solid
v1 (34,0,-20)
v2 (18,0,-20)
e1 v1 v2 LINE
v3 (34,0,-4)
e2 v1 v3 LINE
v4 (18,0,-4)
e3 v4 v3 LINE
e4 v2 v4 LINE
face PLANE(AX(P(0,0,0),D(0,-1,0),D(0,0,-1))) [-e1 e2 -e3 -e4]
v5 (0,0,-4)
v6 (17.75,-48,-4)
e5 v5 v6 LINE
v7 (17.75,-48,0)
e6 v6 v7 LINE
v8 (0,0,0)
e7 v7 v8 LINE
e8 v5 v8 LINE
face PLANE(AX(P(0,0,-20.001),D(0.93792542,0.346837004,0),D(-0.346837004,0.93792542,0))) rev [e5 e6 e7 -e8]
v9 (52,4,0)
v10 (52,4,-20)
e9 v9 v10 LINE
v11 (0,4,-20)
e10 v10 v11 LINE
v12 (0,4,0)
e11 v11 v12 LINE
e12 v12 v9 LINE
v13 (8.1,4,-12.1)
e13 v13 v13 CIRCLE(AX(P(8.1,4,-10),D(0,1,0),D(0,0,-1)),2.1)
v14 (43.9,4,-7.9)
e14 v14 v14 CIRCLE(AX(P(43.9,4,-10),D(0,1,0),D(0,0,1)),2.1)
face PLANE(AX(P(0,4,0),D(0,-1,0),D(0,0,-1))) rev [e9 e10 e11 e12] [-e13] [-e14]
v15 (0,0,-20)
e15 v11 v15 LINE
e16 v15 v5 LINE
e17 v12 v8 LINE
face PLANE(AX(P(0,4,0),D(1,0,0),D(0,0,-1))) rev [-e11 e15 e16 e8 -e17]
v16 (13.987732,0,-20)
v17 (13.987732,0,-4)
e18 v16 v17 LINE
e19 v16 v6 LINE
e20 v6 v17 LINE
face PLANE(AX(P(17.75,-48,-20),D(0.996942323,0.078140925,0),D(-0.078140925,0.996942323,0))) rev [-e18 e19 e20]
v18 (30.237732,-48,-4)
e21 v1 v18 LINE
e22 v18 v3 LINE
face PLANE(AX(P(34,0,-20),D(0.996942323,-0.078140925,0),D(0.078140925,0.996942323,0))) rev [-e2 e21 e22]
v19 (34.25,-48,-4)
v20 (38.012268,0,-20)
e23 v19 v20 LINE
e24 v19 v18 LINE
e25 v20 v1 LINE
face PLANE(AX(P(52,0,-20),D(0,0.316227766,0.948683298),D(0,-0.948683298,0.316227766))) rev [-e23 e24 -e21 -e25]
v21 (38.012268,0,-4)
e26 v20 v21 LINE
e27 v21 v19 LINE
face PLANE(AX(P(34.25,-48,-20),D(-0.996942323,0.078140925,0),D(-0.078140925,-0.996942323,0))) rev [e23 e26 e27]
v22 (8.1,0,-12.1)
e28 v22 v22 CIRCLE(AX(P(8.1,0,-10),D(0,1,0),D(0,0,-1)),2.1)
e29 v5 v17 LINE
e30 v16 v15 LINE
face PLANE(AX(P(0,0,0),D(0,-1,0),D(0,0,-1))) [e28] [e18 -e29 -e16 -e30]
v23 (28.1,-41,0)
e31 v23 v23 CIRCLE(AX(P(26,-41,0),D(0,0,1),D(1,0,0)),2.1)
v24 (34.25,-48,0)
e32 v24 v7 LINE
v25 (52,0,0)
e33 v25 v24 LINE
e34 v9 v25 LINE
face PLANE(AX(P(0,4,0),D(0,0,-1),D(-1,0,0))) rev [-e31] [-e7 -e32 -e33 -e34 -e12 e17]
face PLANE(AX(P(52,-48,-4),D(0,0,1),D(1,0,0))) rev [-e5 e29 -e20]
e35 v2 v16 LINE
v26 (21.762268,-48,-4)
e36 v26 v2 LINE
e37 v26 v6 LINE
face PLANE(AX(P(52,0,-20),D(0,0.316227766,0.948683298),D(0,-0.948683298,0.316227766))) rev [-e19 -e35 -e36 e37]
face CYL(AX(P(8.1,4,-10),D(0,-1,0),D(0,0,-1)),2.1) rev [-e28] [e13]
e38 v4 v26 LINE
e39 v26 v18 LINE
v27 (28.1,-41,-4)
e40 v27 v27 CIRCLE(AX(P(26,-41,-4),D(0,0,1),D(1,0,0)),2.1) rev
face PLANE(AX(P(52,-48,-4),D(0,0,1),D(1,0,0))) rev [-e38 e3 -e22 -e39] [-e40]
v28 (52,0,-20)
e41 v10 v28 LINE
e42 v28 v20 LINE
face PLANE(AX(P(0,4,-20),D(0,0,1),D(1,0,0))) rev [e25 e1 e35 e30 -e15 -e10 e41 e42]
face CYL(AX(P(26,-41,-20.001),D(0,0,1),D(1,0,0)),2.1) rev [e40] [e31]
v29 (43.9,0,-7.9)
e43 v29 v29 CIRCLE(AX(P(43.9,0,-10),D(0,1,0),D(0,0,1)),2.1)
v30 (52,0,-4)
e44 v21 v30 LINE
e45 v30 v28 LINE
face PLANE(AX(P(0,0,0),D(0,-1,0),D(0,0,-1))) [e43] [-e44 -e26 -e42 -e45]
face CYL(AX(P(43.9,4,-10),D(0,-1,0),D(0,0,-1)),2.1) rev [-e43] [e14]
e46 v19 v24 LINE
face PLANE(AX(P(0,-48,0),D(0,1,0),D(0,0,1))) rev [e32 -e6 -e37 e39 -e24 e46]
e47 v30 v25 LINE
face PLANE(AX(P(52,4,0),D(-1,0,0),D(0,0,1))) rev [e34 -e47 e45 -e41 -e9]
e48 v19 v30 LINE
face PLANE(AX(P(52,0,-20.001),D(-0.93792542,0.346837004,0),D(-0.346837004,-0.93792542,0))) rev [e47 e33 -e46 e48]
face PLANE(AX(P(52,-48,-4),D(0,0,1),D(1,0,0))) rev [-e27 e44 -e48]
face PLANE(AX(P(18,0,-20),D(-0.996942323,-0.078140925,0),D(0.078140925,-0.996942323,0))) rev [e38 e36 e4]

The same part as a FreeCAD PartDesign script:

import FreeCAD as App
import Part
import Sketcher
from FreeCAD import Vector

doc = App.newDocument("Part")
body = doc.addObject("PartDesign::Body", "Body")

# Sketch on XZ plane
sketch1 = doc.addObject("Sketcher::SketchObject", "Sketch")
body.addObject(sketch1)
sketch1.AttachmentSupport = (doc.XZ_Plane, [""])
sketch1.MapMode = "FlatFace"
sketch1.addGeometry([
    Part.LineSegment(Vector(0, -20, 0), Vector(0, 0, 0)),  # 0
    Part.LineSegment(Vector(0, 0, 0), Vector(52, 0, 0)),  # 1
    Part.LineSegment(Vector(52, 0, 0), Vector(52, -20, 0)),  # 2
    Part.LineSegment(Vector(52, -20, 0), Vector(0, -20, 0)),  # 3
    Part.Circle(Vector(8.1, -10, 0), Vector(0, 0, 1), 2.1),  # 4
    Part.Circle(Vector(43.9, -10, 0), Vector(0, 0, 1), 2.1),  # 5
], False)
sketch1.addConstraint([
    Sketcher.Constraint("Coincident", 0, 2, 1, 1),
    Sketcher.Constraint("Coincident", 1, 2, 2, 1),
    Sketcher.Constraint("Coincident", 2, 2, 3, 1),
    Sketcher.Constraint("Coincident", 3, 2, 0, 1),
    Sketcher.Constraint("Vertical", 0),
    Sketcher.Constraint("Horizontal", 1),
    Sketcher.Constraint("Vertical", 2),
    Sketcher.Constraint("Horizontal", 3),
    Sketcher.Constraint("Coincident", 0, 2, -1, 1),
    Sketcher.Constraint("Equal", 4, 5),
    Sketcher.Constraint("Horizontal", 4, 3, 5, 3),
    Sketcher.Constraint("Diameter", 4, 4.2),
    Sketcher.Constraint("DistanceX", 1, 1, 1, 2, 52.0),
    Sketcher.Constraint("DistanceY", 0, 1, 0, 2, 20.0),
    Sketcher.Constraint("DistanceY", 4, 3, -1, 1, 10.0),
    Sketcher.Constraint("DistanceX", -1, 1, 4, 3, 8.1),
    Sketcher.Constraint("DistanceX", -1, 1, 5, 3, 43.9),
])
pad1 = doc.addObject("PartDesign::Pad", "Pad")
body.addObject(pad1)
pad1.Profile = sketch1
pad1.Length = 4
pad1.Reversed = True

# Sketch on XZ plane
sketch2 = doc.addObject("Sketcher::SketchObject", "Sketch001")
body.addObject(sketch2)
sketch2.AttachmentSupport = (doc.XZ_Plane, [""])
sketch2.MapMode = "FlatFace"
sketch2.addGeometry([
    Part.LineSegment(Vector(0, 0, 0), Vector(0, -4, 0)),
    Part.LineSegment(Vector(0, -4, 0), Vector(52, -4, 0)),
    Part.LineSegment(Vector(52, -4, 0), Vector(52, 0, 0)),
    Part.LineSegment(Vector(52, 0, 0), Vector(0, 0, 0)),
], False)
sketch2.addConstraint([
    Sketcher.Constraint("Coincident", 0, 2, 1, 1),
    Sketcher.Constraint("Coincident", 1, 2, 2, 1),
    Sketcher.Constraint("Coincident", 2, 2, 3, 1),
    Sketcher.Constraint("Coincident", 3, 2, 0, 1),
    Sketcher.Constraint("Vertical", 0),
    Sketcher.Constraint("Horizontal", 1),
    Sketcher.Constraint("Vertical", 2),
    Sketcher.Constraint("Horizontal", 3),
    Sketcher.Constraint("Coincident", 3, 2, -1, 1),
    Sketcher.Constraint("DistanceX", 1, 1, 1, 2, 52.0),
    Sketcher.Constraint("DistanceY", 0, 2, 0, 1, 4.0),
])
pad2 = doc.addObject("PartDesign::Pad", "Pad001")
body.addObject(pad2)
pad2.Profile = sketch2
pad2.Length = 48

# Sketch on XY plane
sketch3 = doc.addObject("Sketcher::SketchObject", "Sketch002")
body.addObject(sketch3)
sketch3.AttachmentSupport = (doc.XY_Plane, [""])
sketch3.MapMode = "FlatFace"
sketch3.addGeometry(Part.Circle(Vector(26, -41, 0), Vector(0, 0, 1), 2.1), False)
sketch3.addConstraint([
    Sketcher.Constraint("Diameter", 0, 4.2),
    Sketcher.Constraint("DistanceX", -1, 1, 0, 3, 26.0),
    Sketcher.Constraint("DistanceY", 0, 3, -1, 1, 41.0),
])
pocket1 = doc.addObject("PartDesign::Pocket", "Pocket")
body.addObject(pocket1)
pocket1.Profile = sketch3
pocket1.Type = "UpToFirst"

# Sketch on XY plane
sketch4 = doc.addObject("Sketcher::SketchObject", "Sketch003")
body.addObject(sketch4)
sketch4.AttachmentSupport = (doc.XY_Plane, [""])
sketch4.MapMode = "FlatFace"
sketch4.addGeometry([
    Part.LineSegment(Vector(52, 0, 0), Vector(34.25, -48, 0)),
    Part.LineSegment(Vector(34.25, -48, 0), Vector(52, -48, 0)),
    Part.LineSegment(Vector(52, -48, 0), Vector(52, 0, 0)),
], False)
sketch4.addConstraint([
    Sketcher.Constraint("Coincident", 0, 2, 1, 1),
    Sketcher.Constraint("Coincident", 1, 2, 2, 1),
    Sketcher.Constraint("Coincident", 2, 2, 0, 1),
    Sketcher.Constraint("Horizontal", 1),
    Sketcher.Constraint("Vertical", 2),
    Sketcher.Constraint("PointOnObject", 2, 2, -1),
    Sketcher.Constraint("DistanceY", 2, 1, 2, 2, 48.0),
    Sketcher.Constraint("DistanceX", -1, 1, 1, 2, 52.0),
    Sketcher.Constraint("DistanceX", 1, 1, 1, 2, 17.75),
])
pocket2 = doc.addObject("PartDesign::Pocket", "Pocket001")
body.addObject(pocket2)
pocket2.Profile = sketch4
pocket2.Type = "UpToFirst"

# Sketch on XY plane
sketch5 = doc.addObject("Sketcher::SketchObject", "Sketch004")
body.addObject(sketch5)
sketch5.AttachmentSupport = (doc.XY_Plane, [""])
sketch5.MapMode = "FlatFace"
sketch5.addGeometry([
    Part.LineSegment(Vector(0, 0, 0), Vector(0, -48, 0)),
    Part.LineSegment(Vector(0, -48, 0), Vector(17.75, -48, 0)),
    Part.LineSegment(Vector(17.75, -48, 0), Vector(0, 0, 0)),
], False)
sketch5.addConstraint([
    Sketcher.Constraint("Coincident", 0, 2, 1, 1),
    Sketcher.Constraint("Coincident", 1, 2, 2, 1),
    Sketcher.Constraint("Coincident", 2, 2, 0, 1),
    Sketcher.Constraint("Vertical", 0),
    Sketcher.Constraint("Horizontal", 1),
    Sketcher.Constraint("Coincident", 2, 2, -1, 1),
    Sketcher.Constraint("DistanceY", 0, 2, 0, 1, 48.0),
    Sketcher.Constraint("DistanceX", 1, 1, 1, 2, 17.75),
])
pocket3 = doc.addObject("PartDesign::Pocket", "Pocket002")
body.addObject(pocket3)
pocket3.Profile = sketch5
pocket3.Type = "UpToFirst"

# Sketch on XY plane
sketch6 = doc.addObject("Sketcher::SketchObject", "Sketch005")
body.addObject(sketch6)
sketch6.AttachmentSupport = (doc.XY_Plane, [""])
sketch6.MapMode = "FlatFace"
sketch6.AttachmentOffset = App.Placement(Vector(0, 0, -4), App.Rotation())
sketch6.addGeometry([
    Part.LineSegment(Vector(38.012268, 0, 0), Vector(34.25, -48, 0)),  # 0
    Part.LineSegment(Vector(34.25, -48, 0), Vector(30.237732, -48, 0)),  # 1
    Part.LineSegment(Vector(30.237732, -48, 0), Vector(34, 0, 0)),  # 2
    Part.LineSegment(Vector(34, 0, 0), Vector(38.012268, 0, 0)),  # 3
    Part.LineSegment(Vector(13.987732, 0, 0), Vector(18, 0, 0)),  # 4
    Part.LineSegment(Vector(18, 0, 0), Vector(21.762268, -48, 0)),  # 5
    Part.LineSegment(Vector(21.762268, -48, 0), Vector(17.75, -48, 0)),  # 6
    Part.LineSegment(Vector(17.75, -48, 0), Vector(13.987732, 0, 0)),  # 7
], False)
sketch6.addConstraint([
    Sketcher.Constraint("Coincident", 0, 2, 1, 1),
    Sketcher.Constraint("Coincident", 1, 2, 2, 1),
    Sketcher.Constraint("Coincident", 2, 2, 3, 1),
    Sketcher.Constraint("Coincident", 3, 2, 0, 1),
    Sketcher.Constraint("Coincident", 4, 2, 5, 1),
    Sketcher.Constraint("Coincident", 5, 2, 6, 1),
    Sketcher.Constraint("Coincident", 6, 2, 7, 1),
    Sketcher.Constraint("Coincident", 7, 2, 4, 1),
    Sketcher.Constraint("Horizontal", 1),
    Sketcher.Constraint("Horizontal", 3),
    Sketcher.Constraint("Horizontal", 4),
    Sketcher.Constraint("Horizontal", 6),
    Sketcher.Constraint("PointOnObject", 2, 2, -1),
    Sketcher.Constraint("PointOnObject", 4, 2, -1),
    Sketcher.Constraint("Parallel", 0, 2),
    Sketcher.Constraint("Parallel", 5, 7),
    Sketcher.Constraint("Horizontal", 1, 2, 5, 2),
    Sketcher.Constraint("Equal", 3, 4),
    Sketcher.Constraint("Equal", 2, 5),
    Sketcher.Constraint("DistanceY", 0, 2, -1, 1, 48.0),
    Sketcher.Constraint("DistanceX", -1, 1, 2, 2, 34.0),
    Sketcher.Constraint("DistanceX", -1, 1, 4, 2, 18.0),
    Sketcher.Constraint("DistanceX", 6, 2, 0, 2, 16.5),
    Sketcher.Constraint("DistanceX", 1, 2, 1, 1, 4.012268),
])
pad3 = doc.addObject("PartDesign::Pad", "Pad002")
body.addObject(pad3)
pad3.Profile = sketch6
pad3.Length = 16
pad3.Reversed = True

# Sketch on YZ plane
sketch7 = doc.addObject("Sketcher::SketchObject", "Sketch006")
body.addObject(sketch7)
sketch7.AttachmentSupport = (doc.YZ_Plane, [""])
sketch7.MapMode = "FlatFace"
sketch7.addGeometry([
    Part.LineSegment(Vector(-48, -4, 0), Vector(0, -20, 0)),
    Part.LineSegment(Vector(0, -20, 0), Vector(-48, -20, 0)),
    Part.LineSegment(Vector(-48, -20, 0), Vector(-48, -4, 0)),
], False)
sketch7.addConstraint([
    Sketcher.Constraint("Coincident", 0, 2, 1, 1),
    Sketcher.Constraint("Coincident", 1, 2, 2, 1),
    Sketcher.Constraint("Coincident", 2, 2, 0, 1),
    Sketcher.Constraint("Horizontal", 1),
    Sketcher.Constraint("Vertical", 2),
    Sketcher.Constraint("PointOnObject", 0, 2, -2),
    Sketcher.Constraint("DistanceX", 1, 2, 1, 1, 48.0),
    Sketcher.Constraint("DistanceY", 2, 1, 2, 2, 16.0),
    Sketcher.Constraint("DistanceY", 0, 2, -1, 1, 20.0),
])
pocket4 = doc.addObject("PartDesign::Pocket", "Pocket003")
body.addObject(pocket4)
pocket4.Profile = sketch7
pocket4.Type = "ThroughAll"
pocket4.Reversed = True

doc.recompute()
